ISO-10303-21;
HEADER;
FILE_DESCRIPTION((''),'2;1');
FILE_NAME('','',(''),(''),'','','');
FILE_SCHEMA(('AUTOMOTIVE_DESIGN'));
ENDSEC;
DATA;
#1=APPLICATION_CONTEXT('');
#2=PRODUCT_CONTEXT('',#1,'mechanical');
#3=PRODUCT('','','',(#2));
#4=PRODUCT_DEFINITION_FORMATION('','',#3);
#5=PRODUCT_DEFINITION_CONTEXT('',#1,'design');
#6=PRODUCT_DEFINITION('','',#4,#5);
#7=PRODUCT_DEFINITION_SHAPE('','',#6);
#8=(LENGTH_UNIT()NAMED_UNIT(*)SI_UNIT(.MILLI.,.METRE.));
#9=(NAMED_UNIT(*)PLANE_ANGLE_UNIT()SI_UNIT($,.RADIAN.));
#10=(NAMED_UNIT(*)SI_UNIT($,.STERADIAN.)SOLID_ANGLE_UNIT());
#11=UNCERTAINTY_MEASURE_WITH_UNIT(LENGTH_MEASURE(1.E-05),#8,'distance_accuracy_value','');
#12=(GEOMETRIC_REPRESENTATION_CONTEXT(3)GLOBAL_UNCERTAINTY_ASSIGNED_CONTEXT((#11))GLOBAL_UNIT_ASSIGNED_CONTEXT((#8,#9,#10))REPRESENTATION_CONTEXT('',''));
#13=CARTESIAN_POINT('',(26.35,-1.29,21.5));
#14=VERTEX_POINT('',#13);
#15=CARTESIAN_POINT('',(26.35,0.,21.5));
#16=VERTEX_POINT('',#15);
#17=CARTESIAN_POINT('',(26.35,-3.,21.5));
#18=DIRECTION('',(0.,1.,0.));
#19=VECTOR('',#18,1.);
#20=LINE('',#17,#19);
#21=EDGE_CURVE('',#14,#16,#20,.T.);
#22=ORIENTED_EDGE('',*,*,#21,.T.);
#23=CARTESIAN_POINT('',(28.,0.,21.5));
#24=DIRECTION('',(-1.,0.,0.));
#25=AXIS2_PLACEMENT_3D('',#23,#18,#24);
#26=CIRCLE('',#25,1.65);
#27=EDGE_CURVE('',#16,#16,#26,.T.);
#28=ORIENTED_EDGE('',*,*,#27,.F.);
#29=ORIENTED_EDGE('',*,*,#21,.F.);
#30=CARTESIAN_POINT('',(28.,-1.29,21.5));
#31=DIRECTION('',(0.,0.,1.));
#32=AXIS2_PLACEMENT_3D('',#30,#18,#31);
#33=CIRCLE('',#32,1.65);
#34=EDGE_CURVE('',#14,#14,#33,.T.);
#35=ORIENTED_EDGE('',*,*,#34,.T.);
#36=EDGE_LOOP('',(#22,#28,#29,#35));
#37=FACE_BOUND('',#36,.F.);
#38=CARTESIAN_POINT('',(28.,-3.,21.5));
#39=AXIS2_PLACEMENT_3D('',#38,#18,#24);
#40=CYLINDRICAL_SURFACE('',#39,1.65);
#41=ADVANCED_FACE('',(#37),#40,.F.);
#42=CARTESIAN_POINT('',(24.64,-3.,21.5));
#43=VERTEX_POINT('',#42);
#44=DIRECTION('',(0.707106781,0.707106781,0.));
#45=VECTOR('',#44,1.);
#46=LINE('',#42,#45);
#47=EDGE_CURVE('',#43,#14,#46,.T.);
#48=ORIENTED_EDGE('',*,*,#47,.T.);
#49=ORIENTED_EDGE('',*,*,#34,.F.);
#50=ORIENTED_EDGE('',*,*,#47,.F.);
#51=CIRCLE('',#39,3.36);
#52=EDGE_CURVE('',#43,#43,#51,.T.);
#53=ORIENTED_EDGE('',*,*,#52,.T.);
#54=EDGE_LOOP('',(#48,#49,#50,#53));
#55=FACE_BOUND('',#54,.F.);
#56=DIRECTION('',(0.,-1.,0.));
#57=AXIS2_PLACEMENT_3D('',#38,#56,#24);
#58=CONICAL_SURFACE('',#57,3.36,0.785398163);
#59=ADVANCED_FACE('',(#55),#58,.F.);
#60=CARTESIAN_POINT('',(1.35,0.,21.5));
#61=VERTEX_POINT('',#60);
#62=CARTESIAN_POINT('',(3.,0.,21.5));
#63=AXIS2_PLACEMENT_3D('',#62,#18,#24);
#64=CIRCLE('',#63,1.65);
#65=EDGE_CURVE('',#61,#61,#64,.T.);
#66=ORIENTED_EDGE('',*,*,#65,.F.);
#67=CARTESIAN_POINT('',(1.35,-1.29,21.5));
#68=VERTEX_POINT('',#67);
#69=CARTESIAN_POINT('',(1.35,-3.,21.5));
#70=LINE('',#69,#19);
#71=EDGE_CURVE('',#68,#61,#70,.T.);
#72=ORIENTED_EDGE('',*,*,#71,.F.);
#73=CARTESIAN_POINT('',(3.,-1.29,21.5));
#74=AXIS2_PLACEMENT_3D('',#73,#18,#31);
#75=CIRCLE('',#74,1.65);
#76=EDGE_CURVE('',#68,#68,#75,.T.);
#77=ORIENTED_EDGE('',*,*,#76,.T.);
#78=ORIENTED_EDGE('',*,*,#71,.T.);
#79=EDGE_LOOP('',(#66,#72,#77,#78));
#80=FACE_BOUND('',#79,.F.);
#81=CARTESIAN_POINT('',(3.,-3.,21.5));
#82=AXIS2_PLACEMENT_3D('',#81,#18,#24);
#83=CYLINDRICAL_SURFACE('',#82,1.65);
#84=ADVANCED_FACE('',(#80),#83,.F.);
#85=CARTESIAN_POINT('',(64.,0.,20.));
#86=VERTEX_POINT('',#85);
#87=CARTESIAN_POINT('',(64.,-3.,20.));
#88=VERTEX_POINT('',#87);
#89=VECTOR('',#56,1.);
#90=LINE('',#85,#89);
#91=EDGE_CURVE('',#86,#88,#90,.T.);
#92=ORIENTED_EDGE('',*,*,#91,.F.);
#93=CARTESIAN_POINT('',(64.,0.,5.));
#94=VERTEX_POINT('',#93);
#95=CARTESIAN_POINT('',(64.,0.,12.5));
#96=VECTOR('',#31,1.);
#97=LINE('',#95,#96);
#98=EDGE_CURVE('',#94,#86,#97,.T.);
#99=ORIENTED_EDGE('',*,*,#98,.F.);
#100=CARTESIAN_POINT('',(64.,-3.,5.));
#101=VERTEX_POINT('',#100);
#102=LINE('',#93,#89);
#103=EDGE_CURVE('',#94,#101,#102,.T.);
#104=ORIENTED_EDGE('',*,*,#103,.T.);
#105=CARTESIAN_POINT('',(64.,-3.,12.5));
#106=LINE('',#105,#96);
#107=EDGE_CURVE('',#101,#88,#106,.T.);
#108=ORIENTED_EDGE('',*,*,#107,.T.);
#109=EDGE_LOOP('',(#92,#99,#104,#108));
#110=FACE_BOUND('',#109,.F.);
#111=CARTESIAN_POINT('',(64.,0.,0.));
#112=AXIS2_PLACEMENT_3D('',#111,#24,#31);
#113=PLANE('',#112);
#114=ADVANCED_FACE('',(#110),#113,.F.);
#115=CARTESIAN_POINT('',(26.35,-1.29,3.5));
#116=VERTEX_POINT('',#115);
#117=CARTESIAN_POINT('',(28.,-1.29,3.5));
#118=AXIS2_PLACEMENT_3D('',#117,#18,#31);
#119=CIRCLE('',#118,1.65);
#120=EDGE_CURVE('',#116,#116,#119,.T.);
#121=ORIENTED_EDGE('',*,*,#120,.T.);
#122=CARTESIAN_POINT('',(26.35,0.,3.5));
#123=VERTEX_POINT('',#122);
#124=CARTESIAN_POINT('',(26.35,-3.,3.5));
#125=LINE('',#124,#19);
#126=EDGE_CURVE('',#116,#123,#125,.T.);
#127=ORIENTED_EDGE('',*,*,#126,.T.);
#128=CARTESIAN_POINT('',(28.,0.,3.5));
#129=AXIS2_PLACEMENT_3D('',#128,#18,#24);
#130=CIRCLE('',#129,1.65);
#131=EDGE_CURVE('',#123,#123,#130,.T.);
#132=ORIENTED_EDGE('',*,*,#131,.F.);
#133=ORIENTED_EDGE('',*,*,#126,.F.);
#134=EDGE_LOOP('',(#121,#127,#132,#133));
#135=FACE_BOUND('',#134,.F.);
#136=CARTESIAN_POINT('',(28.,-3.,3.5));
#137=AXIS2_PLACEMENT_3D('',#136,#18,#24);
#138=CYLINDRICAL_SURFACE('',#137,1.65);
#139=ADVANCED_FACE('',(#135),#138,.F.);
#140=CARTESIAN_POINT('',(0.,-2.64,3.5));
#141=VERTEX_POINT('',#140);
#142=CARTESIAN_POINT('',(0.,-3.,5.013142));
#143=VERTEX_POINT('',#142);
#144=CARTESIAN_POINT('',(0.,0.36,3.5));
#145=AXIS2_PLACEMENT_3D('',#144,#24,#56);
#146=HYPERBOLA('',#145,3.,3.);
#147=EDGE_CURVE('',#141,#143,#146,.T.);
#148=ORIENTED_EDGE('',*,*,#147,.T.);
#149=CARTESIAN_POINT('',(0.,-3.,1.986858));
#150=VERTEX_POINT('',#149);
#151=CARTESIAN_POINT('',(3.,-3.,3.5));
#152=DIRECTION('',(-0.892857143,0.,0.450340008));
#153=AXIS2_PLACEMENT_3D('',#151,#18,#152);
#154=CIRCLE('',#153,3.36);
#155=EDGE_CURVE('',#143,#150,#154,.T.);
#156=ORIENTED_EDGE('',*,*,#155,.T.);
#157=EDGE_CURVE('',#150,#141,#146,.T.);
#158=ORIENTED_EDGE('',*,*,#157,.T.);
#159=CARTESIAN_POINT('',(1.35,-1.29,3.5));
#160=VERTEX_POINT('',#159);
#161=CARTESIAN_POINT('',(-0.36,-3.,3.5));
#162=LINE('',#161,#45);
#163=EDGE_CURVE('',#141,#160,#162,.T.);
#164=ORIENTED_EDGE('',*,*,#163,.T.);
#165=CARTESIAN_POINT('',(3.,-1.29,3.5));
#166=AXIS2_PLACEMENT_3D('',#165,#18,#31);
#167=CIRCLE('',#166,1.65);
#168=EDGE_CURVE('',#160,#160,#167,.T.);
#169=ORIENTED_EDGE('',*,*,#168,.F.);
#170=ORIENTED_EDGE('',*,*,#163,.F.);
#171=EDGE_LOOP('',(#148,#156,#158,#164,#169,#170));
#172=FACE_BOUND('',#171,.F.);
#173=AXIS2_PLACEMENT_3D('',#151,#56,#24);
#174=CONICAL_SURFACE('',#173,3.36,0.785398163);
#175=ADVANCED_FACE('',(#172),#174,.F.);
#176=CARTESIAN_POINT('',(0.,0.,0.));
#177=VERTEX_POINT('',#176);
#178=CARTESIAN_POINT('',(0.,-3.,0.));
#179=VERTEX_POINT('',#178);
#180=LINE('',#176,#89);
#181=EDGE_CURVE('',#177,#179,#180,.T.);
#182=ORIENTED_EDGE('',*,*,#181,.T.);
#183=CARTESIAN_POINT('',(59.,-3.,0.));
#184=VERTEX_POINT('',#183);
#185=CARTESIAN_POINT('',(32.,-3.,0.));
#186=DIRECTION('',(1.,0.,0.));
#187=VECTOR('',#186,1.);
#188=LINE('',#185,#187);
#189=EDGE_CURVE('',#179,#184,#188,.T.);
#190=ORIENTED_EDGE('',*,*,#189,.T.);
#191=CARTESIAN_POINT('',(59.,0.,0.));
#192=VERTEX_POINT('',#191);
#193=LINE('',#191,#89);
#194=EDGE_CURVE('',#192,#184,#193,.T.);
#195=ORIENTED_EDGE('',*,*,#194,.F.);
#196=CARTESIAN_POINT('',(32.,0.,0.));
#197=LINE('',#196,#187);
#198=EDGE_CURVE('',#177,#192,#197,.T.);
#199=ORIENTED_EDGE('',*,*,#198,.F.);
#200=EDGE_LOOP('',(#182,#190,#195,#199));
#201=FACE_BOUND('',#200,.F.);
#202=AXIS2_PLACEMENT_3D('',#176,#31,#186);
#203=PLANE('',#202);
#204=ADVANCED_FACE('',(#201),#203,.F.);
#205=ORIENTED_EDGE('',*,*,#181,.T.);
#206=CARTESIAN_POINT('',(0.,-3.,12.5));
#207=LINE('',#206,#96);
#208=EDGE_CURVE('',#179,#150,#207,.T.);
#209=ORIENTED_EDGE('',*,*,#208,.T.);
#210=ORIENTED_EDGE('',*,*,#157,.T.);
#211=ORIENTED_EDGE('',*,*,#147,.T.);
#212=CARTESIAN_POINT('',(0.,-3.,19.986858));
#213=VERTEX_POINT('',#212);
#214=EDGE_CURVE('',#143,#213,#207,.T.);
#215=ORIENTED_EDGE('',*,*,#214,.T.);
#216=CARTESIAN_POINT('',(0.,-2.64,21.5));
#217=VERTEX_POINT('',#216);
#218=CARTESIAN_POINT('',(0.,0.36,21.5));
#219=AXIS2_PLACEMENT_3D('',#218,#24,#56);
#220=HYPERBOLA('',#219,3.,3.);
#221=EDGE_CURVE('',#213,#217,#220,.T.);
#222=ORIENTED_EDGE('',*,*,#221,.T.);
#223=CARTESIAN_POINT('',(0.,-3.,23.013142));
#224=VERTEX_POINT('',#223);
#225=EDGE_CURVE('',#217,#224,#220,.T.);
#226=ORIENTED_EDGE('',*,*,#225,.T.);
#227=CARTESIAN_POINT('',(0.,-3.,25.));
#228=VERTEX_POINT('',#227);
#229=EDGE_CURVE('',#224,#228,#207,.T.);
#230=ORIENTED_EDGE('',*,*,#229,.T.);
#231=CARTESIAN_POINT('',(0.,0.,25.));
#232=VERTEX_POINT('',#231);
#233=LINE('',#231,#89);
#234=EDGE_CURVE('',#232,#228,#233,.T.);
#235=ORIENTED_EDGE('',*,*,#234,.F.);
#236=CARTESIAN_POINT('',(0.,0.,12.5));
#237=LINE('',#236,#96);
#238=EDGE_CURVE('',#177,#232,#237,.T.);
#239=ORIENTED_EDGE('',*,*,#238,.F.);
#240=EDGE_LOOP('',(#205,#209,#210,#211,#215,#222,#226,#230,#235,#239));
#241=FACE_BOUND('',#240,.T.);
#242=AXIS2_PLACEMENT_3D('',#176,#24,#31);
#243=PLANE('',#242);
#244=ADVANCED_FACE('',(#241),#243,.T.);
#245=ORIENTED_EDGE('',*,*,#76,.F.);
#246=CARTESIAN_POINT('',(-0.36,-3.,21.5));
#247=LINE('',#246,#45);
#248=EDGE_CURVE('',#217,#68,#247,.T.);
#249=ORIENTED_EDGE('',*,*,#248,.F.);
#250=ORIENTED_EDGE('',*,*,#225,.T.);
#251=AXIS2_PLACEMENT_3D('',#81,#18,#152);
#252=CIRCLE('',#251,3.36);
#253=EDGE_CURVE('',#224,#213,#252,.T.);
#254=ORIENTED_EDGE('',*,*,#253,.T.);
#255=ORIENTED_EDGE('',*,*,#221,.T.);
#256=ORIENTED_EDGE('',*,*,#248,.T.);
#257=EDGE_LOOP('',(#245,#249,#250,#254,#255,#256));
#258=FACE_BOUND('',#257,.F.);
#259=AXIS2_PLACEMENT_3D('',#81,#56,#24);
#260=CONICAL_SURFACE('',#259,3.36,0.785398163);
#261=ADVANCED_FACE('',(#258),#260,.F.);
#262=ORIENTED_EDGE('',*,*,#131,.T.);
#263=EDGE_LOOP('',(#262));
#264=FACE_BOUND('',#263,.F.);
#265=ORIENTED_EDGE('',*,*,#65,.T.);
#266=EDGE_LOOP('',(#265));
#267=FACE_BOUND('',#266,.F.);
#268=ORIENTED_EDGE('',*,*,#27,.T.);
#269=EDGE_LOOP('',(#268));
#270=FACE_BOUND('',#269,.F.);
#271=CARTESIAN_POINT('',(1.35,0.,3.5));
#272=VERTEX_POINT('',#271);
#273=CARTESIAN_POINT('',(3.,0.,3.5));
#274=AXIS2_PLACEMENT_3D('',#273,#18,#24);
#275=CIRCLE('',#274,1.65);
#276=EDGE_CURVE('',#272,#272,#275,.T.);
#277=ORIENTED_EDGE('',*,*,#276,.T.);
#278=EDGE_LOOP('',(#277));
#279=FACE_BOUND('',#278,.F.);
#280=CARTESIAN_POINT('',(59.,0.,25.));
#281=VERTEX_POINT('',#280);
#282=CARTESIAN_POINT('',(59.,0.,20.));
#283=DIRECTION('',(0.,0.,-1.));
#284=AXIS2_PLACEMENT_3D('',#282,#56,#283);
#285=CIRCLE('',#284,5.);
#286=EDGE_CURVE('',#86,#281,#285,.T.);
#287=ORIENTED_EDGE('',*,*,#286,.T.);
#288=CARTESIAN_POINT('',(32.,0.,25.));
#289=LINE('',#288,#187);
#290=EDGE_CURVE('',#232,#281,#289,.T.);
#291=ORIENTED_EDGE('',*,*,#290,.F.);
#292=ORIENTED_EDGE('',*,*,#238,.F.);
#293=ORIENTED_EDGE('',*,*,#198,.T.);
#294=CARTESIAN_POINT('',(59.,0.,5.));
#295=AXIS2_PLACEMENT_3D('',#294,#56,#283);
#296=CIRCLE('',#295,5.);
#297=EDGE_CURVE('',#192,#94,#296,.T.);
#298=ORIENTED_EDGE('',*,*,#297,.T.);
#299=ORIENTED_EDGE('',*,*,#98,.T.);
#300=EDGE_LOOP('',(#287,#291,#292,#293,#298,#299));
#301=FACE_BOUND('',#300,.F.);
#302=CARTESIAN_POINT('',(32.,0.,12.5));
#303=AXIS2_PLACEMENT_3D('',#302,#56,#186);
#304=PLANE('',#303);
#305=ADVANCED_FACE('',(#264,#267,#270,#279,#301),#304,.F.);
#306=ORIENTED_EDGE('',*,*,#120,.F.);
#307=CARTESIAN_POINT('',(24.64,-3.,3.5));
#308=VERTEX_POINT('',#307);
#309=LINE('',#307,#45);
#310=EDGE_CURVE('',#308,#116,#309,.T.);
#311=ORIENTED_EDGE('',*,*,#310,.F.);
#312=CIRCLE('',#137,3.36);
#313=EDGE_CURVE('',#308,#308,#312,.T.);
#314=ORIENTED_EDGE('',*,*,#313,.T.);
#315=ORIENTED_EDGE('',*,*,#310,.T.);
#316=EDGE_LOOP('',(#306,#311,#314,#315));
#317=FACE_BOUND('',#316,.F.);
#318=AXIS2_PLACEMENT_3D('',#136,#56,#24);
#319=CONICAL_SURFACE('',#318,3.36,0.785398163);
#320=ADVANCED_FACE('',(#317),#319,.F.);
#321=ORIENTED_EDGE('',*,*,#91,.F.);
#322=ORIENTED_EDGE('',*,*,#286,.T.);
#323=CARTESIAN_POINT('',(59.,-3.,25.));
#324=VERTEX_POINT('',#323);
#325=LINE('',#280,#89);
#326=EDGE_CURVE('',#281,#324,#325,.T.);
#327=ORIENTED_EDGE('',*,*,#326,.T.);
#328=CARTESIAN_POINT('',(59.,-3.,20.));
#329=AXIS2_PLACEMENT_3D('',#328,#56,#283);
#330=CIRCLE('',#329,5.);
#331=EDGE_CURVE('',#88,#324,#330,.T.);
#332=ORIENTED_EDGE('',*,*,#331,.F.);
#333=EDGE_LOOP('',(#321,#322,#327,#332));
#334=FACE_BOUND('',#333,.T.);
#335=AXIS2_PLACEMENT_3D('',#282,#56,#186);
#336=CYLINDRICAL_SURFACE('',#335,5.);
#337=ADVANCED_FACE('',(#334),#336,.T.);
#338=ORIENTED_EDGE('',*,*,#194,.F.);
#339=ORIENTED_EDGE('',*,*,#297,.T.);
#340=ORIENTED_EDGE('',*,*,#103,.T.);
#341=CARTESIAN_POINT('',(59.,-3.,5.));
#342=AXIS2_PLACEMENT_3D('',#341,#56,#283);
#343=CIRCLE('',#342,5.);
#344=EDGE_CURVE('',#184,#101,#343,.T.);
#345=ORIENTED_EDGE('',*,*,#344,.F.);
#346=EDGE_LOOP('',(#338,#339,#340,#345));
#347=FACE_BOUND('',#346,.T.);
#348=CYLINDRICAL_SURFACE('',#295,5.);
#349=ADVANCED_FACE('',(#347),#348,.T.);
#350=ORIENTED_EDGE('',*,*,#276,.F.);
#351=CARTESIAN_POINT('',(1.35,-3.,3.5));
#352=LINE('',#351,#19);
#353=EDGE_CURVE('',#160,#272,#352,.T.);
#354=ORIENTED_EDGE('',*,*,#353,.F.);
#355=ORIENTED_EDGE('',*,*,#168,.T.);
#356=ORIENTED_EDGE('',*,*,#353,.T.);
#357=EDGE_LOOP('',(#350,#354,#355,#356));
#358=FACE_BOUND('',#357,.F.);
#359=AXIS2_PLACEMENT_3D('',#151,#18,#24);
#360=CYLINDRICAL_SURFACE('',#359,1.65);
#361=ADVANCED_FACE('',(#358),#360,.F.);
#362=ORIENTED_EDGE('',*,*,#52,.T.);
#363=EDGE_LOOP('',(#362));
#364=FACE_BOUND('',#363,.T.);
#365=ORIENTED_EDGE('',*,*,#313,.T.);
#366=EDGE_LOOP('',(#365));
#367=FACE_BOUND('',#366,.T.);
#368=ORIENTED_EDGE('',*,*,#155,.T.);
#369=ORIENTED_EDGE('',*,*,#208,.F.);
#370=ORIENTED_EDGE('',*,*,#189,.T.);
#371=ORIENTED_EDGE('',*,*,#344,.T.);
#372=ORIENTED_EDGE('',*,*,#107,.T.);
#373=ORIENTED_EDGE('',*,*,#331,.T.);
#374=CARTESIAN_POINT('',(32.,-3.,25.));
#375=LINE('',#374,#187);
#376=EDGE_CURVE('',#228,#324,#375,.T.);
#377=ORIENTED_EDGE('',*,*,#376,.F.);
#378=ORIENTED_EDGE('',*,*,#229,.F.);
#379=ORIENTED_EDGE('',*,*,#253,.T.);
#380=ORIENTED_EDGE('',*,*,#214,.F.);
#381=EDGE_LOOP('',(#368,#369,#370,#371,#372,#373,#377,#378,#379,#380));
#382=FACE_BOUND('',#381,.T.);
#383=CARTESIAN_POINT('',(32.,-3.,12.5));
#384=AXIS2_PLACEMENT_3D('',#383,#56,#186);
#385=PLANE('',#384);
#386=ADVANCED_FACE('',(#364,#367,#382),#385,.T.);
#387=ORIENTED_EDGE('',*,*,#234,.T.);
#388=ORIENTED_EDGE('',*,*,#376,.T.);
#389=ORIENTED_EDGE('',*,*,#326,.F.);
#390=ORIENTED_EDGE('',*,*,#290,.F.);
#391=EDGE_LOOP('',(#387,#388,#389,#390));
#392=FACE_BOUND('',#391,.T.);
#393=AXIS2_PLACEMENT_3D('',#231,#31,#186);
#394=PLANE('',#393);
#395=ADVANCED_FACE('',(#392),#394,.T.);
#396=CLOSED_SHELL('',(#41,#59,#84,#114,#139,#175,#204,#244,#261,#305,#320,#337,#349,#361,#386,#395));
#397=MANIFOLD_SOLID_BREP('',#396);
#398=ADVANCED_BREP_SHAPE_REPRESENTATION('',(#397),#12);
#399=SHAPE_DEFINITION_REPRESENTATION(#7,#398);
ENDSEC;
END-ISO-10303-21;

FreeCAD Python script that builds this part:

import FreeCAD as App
import Part
import Sketcher
from FreeCAD import Vector
Q = App.Units.Quantity


def edges_at(feature, points):
    """Names of the edges that pass closest to the given points."""
    edges = feature.Shape.Edges
    near = lambda p: min(range(len(edges)), key=lambda i: edges[i].distToShape(Part.Vertex(*p))[0])
    return sorted({f"Edge{near(p) + 1}" for p in points})


def add_polygon(sketch, points):
    """Adds a closed chain of lines whose ends are joined by coincident constraints."""
    first, n = sketch.GeometryCount, len(points)
    for a, b in zip(points, points[1:] + points[:1]):
        sketch.addGeometry(Part.LineSegment(App.Vector(*a, 0), App.Vector(*b, 0)), False)
    for i in range(n):
        sketch.addConstraint(Sketcher.Constraint("Coincident", first + i, 2, first + (i + 1) % n, 1))

doc = App.newDocument("Part")
body = doc.addObject("PartDesign::Body", "Body")

# Sketch on XZ plane
sketch1 = body.newObject("Sketcher::SketchObject", "Sketch")
sketch1.AttachmentSupport = (doc.getObject("XZ_Plane"), [""])
sketch1.MapMode = "FlatFace"
add_polygon(sketch1, [(0, 25), (0, 0), (64, 0), (64, 25)])  # lines 0-3
sketch1.addConstraint(Sketcher.Constraint("Vertical", 0))
sketch1.addConstraint(Sketcher.Constraint("Horizontal", 1))
sketch1.addConstraint(Sketcher.Constraint("Vertical", 2))
sketch1.addConstraint(Sketcher.Constraint("Horizontal", 3))
sketch1.addConstraint(Sketcher.Constraint("Coincident", 0, 2, -1, 1))
sketch1.addConstraint(Sketcher.Constraint("DistanceX", 1, 1, 1, 2, Q("64 mm")))
sketch1.addConstraint(Sketcher.Constraint("DistanceY", 0, 2, 0, 1, Q("25 mm")))
pad1 = body.newObject("PartDesign::Pad", "Pad")
pad1.Profile = sketch1
pad1.Length = 3

# Sketch on XZ plane
sketch2 = body.newObject("Sketcher::SketchObject", "Sketch001")
sketch2.AttachmentSupport = (doc.getObject("XZ_Plane"), [""])
sketch2.MapMode = "FlatFace"
sketch2.AttachmentOffset = App.Placement(Vector(0, 0, 3), App.Rotation())
sketch2.addGeometry(Part.Circle(Vector(3, 21.5, 0), Vector(0, 0, 1), 1.65), False)
sketch2.addGeometry(Part.Circle(Vector(28, 21.5, 0), Vector(0, 0, 1), 1.65), False)
sketch2.addGeometry(Part.Circle(Vector(28, 3.5, 0), Vector(0, 0, 1), 1.65), False)
sketch2.addGeometry(Part.Circle(Vector(3, 3.5, 0), Vector(0, 0, 1), 1.65), False)
sketch2.addConstraint(Sketcher.Constraint("Equal", 0, 1))
sketch2.addConstraint(Sketcher.Constraint("Equal", 1, 2))
sketch2.addConstraint(Sketcher.Constraint("Equal", 2, 3))
sketch2.addConstraint(Sketcher.Constraint("Horizontal", 0, 3, 1, 3))
sketch2.addConstraint(Sketcher.Constraint("Horizontal", 2, 3, 3, 3))
sketch2.addConstraint(Sketcher.Constraint("Vertical", 1, 3, 2, 3))
sketch2.addConstraint(Sketcher.Constraint("Vertical", 0, 3, 3, 3))
sketch2.addConstraint(Sketcher.Constraint("Diameter", 0, Q("3.3 mm")))
sketch2.addConstraint(Sketcher.Constraint("DistanceX", -1, 1, 0, 3, Q("3 mm")))
sketch2.addConstraint(Sketcher.Constraint("DistanceX", -1, 1, 1, 3, Q("28 mm")))
sketch2.addConstraint(Sketcher.Constraint("DistanceY", 2, 3, 1, 3, Q("18 mm")))
sketch2.addConstraint(Sketcher.Constraint("DistanceY", -1, 1, 0, 3, Q("21.5 mm")))
doc.recompute()
hole = body.newObject("PartDesign::Hole", "Hole")
hole.Profile = sketch2
hole.ThreadType = "None"
hole.Diameter = 3.3
hole.DepthType = "ThroughAll"
hole.HoleCutType = "Countersink"
hole.HoleCutDiameter = 6.72
hole.HoleCutCountersinkAngle = 90
doc.recompute()

fillet = body.newObject("PartDesign::Fillet", "Fillet")
fillet.Base = (hole, edges_at(hole, [(64, -1.5, 0), (64, -1.5, 25)]))
fillet.Radius = 5

doc.recompute()
